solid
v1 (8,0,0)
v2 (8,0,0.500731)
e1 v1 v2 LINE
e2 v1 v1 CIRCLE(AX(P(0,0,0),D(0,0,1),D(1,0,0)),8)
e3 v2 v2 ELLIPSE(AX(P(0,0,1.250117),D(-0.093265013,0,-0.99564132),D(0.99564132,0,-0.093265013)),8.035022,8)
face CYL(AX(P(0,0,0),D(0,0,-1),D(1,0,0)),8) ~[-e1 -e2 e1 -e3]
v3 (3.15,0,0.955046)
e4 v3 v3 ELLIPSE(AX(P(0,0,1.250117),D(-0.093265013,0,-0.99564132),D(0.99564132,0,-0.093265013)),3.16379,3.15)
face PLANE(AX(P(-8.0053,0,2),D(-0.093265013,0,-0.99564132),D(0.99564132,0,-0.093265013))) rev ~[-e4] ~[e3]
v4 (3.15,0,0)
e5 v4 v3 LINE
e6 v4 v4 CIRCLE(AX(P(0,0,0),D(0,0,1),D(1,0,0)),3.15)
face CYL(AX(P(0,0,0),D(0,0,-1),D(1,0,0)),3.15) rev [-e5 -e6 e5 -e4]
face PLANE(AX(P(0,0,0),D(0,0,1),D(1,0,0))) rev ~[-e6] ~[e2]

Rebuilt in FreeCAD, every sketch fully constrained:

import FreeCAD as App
import Part
import Sketcher

V = App.Vector
Q = App.Units.Quantity


def add_polygon(sketch, points):
    """Adds a closed chain of lines whose ends are joined by coincident constraints."""
    first, n = sketch.GeometryCount, len(points)
    for a, b in zip(points, points[1:] + points[:1]):
        sketch.addGeometry(Part.LineSegment(App.Vector(*a, 0), App.Vector(*b, 0)), False)
    for i in range(n):
        sketch.addConstraint(Sketcher.Constraint("Coincident", first + i, 2, first + (i + 1) % n, 1))

doc = App.newDocument("Part")
body = doc.addObject("PartDesign::Body", "Body")

# Sketch on XY plane
sketch1 = body.newObject("Sketcher::SketchObject", "Sketch")
sketch1.AttachmentSupport = (doc.getObject("XY_Plane"), [""])
sketch1.MapMode = "FlatFace"
sketch1.addGeometry([
    Part.Circle(V(0, 0, 0), V(0, 0, 1), 8),
    Part.Circle(V(0, 0, 0), V(0, 0, 1), 3.1),
], False)
sketch1.addConstraint([
    Sketcher.Constraint("Coincident", 0, 3, -1, 1),
    Sketcher.Constraint("Coincident", 1, 3, -1, 1),
    Sketcher.Constraint("Diameter", 0, Q("16 mm")),
    Sketcher.Constraint("Diameter", 1, Q("6.3 mm")),
])
pad1 = body.newObject("PartDesign::Pad", "Pad")
pad1.Profile = sketch1
pad1.Length = 2

# Sketch on XZ plane
sketch2 = body.newObject("Sketcher::SketchObject", "Sketch001")
sketch2.AttachmentSupport = (doc.getObject("XZ_Plane"), [""])
sketch2.MapMode = "FlatFace"
add_polygon(sketch2, [(8, 0.5), (-8, 2), (8, 2)])  # lines 0-2
sketch2.addConstraint([
    Sketcher.Constraint("Horizontal", 1),
    Sketcher.Constraint("Vertical", 2),
    Sketcher.Constraint("DistanceY", 2, 2, 2, 1, Q("1.5 mm")),
    Sketcher.Constraint("DistanceY", -1, 1, 0, 2, Q("2 mm")),
    Sketcher.Constraint("DistanceX", 1, 1, 1, 2, Q("16.013 mm")),
    Sketcher.Constraint("DistanceX", 0, 2, -1, 1, Q("8.0053 mm")),
])
pocket1 = body.newObject("PartDesign::Pocket", "Pocket")
pocket1.Profile = sketch2
pocket1.Length = 20
pocket1.Midplane = True

doc.recompute()
